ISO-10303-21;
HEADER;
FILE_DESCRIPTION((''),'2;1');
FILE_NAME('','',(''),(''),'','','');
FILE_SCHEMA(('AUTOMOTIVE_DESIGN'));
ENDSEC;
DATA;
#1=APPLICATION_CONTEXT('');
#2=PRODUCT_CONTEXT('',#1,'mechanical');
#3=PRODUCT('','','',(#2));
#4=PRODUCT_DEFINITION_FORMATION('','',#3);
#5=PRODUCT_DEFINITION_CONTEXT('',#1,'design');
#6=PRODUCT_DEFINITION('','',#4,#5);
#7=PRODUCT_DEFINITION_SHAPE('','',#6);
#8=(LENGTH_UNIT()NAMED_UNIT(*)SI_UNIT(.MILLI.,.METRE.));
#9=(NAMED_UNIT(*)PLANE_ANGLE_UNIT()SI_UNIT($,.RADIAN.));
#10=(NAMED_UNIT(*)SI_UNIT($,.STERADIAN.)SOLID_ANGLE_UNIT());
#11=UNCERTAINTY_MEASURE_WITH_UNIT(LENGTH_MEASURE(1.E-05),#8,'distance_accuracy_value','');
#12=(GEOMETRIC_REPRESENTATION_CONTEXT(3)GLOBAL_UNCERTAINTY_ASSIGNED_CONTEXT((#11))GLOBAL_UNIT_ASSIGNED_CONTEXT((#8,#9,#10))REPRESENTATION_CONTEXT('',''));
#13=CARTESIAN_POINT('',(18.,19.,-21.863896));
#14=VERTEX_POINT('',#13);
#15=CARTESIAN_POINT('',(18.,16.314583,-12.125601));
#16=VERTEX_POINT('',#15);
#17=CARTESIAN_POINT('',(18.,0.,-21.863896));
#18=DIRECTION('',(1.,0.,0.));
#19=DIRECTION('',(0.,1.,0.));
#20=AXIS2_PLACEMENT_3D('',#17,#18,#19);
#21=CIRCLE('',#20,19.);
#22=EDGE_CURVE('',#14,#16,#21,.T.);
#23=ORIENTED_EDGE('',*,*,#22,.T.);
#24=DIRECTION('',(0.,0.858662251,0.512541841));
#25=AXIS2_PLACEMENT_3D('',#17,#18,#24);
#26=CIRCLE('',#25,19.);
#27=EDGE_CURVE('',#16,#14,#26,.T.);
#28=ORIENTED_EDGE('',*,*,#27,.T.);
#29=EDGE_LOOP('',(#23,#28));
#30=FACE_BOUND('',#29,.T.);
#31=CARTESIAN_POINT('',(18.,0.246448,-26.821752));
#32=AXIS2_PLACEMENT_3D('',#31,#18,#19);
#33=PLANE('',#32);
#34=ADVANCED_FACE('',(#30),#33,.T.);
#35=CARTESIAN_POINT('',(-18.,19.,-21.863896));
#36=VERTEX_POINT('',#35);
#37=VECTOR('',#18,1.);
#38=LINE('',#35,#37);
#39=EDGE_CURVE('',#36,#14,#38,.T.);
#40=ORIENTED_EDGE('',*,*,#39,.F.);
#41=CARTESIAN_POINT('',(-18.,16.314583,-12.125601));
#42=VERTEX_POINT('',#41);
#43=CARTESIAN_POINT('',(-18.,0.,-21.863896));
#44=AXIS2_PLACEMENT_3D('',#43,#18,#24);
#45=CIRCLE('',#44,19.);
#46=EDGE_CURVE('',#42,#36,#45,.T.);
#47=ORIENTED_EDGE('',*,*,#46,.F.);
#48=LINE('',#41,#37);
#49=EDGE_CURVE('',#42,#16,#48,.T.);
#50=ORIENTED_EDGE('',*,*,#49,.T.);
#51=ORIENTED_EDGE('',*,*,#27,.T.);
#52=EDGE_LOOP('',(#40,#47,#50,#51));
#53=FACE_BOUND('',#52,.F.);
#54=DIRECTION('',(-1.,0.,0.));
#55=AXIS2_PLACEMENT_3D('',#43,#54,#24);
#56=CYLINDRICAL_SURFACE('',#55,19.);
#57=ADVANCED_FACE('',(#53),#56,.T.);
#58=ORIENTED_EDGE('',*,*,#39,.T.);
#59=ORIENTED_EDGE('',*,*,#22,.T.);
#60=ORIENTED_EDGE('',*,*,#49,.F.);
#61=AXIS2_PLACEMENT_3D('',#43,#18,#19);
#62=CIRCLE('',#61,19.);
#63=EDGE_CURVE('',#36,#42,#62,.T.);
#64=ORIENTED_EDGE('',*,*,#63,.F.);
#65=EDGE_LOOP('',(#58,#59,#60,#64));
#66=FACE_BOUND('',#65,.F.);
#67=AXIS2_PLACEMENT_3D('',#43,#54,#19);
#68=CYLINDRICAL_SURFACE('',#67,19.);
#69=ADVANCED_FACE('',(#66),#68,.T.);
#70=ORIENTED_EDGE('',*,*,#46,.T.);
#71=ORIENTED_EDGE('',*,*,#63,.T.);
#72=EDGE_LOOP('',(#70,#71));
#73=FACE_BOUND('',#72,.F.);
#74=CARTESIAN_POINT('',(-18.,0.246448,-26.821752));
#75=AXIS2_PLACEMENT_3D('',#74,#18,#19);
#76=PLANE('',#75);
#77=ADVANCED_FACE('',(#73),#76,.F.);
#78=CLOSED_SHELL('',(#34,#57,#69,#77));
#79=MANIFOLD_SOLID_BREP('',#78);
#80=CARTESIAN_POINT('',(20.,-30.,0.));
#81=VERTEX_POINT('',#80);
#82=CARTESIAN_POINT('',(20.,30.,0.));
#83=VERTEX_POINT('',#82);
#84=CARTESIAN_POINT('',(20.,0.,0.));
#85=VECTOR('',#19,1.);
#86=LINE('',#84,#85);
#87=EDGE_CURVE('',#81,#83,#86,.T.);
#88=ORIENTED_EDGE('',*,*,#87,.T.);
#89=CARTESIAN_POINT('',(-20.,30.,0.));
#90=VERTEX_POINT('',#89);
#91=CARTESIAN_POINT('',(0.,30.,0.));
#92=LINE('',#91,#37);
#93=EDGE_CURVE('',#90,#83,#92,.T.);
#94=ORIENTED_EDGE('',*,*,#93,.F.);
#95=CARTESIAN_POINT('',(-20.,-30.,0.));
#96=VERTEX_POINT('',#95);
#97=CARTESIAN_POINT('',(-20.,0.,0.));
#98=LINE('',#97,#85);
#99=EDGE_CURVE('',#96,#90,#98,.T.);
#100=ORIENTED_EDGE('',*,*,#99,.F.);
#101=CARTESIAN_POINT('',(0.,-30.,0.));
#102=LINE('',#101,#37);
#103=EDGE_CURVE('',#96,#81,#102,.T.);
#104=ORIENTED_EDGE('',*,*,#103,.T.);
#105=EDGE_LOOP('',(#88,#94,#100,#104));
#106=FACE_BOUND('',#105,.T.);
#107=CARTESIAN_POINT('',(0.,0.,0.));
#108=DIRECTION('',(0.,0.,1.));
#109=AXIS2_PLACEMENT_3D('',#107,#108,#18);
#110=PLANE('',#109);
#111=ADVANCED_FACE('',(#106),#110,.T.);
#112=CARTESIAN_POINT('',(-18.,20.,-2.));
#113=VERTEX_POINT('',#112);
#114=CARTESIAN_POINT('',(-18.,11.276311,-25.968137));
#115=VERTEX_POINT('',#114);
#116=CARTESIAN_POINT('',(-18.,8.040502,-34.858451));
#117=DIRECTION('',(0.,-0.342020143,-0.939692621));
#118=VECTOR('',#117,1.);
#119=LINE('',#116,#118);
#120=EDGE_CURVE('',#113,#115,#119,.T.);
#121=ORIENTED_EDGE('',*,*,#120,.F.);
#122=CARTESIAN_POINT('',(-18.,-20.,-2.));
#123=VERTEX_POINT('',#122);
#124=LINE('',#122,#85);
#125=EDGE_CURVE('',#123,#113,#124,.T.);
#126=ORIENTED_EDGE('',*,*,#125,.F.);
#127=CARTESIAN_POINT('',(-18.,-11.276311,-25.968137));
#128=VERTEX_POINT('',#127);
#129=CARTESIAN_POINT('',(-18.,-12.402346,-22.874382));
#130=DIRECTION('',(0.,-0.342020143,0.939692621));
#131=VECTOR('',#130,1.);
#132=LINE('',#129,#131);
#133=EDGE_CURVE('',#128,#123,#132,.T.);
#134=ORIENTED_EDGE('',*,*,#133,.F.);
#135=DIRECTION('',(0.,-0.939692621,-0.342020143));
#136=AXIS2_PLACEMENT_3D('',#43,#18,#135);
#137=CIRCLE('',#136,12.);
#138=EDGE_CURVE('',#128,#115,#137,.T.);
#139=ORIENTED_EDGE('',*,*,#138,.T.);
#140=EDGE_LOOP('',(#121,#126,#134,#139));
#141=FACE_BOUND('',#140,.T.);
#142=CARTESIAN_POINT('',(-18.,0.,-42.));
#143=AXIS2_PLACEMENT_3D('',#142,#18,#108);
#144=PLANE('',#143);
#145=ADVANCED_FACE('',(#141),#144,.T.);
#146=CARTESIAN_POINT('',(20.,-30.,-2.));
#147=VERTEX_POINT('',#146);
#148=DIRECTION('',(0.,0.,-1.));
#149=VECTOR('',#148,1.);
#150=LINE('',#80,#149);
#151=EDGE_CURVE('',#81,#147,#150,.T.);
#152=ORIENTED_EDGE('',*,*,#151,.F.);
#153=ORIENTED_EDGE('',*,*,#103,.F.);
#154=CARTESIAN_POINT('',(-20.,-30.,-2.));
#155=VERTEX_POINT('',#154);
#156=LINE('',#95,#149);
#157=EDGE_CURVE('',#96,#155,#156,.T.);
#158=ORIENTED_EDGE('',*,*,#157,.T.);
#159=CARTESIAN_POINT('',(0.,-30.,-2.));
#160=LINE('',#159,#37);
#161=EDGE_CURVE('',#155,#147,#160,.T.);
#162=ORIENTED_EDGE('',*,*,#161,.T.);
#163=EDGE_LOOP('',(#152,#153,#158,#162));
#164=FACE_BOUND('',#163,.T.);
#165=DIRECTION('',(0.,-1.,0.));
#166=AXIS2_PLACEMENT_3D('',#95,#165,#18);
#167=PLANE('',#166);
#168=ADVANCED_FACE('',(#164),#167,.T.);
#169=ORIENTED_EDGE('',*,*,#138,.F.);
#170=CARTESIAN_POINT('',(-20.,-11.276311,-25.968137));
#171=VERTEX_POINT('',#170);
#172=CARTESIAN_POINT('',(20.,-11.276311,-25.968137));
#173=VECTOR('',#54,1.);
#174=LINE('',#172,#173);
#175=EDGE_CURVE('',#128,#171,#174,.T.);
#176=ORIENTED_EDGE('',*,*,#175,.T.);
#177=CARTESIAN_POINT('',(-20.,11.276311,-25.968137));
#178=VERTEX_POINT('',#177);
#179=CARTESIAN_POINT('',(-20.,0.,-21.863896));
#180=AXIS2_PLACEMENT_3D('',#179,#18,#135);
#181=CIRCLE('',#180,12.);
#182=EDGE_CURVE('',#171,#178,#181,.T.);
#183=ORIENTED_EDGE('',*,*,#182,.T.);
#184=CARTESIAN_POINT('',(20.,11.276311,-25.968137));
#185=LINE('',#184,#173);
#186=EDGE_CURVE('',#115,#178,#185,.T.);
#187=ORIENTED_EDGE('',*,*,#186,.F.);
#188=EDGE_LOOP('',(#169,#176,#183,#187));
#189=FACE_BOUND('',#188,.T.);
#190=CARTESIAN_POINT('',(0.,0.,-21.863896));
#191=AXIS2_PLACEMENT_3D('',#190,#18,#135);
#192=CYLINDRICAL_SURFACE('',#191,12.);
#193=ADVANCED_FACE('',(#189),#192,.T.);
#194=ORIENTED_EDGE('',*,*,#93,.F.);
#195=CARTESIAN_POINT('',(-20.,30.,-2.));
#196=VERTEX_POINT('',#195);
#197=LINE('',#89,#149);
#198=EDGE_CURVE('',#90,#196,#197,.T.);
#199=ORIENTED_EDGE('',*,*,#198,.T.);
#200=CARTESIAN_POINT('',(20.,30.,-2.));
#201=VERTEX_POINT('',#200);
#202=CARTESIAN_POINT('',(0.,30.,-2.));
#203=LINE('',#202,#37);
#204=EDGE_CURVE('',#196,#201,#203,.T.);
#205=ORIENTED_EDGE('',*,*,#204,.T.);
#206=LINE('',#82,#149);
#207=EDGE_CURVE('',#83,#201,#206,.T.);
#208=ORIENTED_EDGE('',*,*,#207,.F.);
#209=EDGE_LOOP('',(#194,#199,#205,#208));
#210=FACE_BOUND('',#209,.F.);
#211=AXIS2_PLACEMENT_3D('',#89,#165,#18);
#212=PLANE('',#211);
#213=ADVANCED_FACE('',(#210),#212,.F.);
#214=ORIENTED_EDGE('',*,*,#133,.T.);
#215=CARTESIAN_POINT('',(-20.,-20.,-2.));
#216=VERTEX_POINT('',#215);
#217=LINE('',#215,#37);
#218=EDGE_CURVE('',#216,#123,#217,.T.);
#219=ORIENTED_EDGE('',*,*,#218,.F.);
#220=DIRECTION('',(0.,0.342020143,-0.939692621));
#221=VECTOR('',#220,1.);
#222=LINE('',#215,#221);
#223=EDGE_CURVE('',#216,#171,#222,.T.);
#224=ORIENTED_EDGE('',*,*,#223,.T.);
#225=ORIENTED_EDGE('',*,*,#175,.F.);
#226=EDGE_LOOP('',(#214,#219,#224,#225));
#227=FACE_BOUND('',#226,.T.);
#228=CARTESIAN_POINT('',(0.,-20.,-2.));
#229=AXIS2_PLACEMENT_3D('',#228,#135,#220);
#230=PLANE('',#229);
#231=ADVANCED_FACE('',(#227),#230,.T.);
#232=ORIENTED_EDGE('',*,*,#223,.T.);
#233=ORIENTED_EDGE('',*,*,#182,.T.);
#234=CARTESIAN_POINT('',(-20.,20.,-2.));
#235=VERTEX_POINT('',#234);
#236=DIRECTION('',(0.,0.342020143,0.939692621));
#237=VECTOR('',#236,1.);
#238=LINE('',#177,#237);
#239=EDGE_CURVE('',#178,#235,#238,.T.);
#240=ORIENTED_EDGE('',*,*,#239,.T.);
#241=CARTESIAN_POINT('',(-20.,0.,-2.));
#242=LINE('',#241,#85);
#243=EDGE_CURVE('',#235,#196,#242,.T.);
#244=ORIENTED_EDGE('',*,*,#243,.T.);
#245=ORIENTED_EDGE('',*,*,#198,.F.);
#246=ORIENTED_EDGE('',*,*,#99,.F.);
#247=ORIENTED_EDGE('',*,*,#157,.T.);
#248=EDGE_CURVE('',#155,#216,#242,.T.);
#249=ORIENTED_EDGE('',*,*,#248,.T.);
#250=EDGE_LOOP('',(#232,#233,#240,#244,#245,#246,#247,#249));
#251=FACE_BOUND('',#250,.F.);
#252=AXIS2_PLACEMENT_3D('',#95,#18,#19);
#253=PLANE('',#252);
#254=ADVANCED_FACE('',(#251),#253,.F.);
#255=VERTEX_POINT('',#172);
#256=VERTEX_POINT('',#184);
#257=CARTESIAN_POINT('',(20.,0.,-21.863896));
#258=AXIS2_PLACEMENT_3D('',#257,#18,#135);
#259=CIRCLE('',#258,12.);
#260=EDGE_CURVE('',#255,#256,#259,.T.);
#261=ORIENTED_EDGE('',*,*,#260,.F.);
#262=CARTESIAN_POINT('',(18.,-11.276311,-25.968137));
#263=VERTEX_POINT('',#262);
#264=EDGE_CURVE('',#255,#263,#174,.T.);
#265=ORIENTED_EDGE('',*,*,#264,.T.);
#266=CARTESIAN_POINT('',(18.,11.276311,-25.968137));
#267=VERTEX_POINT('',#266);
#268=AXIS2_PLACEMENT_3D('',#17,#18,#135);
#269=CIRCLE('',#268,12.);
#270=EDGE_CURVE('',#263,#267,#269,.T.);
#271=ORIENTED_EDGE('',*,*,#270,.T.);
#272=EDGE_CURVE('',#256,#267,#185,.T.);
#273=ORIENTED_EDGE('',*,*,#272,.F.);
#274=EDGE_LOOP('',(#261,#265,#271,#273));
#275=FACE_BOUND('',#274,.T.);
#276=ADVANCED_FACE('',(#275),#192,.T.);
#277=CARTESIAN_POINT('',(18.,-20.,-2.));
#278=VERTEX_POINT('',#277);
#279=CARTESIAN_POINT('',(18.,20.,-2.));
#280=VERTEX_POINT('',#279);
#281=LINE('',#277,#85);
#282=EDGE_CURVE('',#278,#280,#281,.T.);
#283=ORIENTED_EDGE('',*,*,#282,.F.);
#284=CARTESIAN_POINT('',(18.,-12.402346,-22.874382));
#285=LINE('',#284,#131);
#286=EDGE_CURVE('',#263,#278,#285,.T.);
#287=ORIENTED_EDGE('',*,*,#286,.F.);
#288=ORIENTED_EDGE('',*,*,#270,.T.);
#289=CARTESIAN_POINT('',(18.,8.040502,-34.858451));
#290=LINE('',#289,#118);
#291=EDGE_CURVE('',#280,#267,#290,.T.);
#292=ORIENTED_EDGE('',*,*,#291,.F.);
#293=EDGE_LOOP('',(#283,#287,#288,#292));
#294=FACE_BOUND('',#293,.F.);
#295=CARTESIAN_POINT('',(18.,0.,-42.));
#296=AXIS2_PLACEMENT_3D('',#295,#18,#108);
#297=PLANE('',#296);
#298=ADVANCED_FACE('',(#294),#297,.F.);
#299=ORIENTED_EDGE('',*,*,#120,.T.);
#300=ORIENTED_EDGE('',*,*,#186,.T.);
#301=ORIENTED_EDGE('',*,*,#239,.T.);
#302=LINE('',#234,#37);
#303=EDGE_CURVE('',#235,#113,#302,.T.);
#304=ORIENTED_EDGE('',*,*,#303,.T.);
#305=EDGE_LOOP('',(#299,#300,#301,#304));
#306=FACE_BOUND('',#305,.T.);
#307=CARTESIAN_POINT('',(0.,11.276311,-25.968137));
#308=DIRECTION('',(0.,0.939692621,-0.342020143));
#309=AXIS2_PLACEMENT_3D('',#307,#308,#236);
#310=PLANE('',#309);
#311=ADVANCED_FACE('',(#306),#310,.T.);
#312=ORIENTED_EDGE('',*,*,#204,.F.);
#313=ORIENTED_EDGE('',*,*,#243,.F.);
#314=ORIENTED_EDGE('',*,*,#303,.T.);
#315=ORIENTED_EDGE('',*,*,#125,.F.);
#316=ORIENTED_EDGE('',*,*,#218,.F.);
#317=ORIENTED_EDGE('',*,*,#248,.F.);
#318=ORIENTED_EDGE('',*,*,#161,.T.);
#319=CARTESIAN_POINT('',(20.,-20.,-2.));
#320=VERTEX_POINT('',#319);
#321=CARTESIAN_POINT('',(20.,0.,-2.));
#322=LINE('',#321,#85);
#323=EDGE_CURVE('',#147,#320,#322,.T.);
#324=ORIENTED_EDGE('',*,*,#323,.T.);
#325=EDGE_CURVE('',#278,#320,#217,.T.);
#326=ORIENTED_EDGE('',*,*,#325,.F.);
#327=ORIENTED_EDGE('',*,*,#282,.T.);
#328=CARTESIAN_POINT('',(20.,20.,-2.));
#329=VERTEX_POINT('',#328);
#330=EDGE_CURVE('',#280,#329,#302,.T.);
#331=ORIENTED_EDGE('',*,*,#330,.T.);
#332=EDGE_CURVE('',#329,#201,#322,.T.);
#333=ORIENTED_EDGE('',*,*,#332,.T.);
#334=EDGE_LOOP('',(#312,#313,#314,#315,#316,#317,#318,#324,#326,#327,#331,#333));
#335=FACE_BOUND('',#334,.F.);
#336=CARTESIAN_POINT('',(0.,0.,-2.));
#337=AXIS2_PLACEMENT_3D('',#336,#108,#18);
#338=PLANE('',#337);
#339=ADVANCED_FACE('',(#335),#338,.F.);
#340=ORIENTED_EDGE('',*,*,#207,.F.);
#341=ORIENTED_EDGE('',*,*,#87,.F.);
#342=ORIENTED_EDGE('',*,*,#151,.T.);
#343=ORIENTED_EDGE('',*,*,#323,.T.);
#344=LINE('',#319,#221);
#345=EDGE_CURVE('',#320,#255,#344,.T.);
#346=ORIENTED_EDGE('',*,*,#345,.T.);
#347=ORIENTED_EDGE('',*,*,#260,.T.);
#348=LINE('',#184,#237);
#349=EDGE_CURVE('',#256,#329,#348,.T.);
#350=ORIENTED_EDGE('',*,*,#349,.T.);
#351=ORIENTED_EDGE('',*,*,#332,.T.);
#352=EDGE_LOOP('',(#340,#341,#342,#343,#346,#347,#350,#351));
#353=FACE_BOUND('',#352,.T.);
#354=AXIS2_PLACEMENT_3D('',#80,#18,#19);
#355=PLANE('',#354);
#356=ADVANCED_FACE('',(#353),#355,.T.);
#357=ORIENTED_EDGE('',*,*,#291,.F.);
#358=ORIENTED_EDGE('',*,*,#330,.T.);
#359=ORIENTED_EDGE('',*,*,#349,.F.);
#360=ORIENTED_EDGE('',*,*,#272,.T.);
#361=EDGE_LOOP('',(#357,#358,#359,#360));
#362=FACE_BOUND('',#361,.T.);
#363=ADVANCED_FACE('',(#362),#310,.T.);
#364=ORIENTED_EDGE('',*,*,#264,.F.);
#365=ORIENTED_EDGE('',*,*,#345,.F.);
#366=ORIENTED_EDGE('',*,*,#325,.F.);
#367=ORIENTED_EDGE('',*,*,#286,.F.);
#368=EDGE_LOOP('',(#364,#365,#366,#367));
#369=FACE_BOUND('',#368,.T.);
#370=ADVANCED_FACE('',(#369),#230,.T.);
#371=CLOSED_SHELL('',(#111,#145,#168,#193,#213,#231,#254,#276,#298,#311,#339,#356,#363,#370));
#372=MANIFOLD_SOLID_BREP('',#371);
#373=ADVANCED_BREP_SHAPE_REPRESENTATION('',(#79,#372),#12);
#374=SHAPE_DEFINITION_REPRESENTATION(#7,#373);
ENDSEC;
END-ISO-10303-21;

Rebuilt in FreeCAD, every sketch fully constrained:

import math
import FreeCAD as App
import Part
import Sketcher

V = App.Vector
Q = App.Units.Quantity

doc = App.newDocument("Part")
body = doc.addObject("PartDesign::Body", "Body")

# Sketch on XY plane
sketch1 = body.newObject("Sketcher::SketchObject", "Sketch")
sketch1.AttachmentSupport = (doc.getObject("XY_Plane"), [""])
sketch1.MapMode = "FlatFace"
sketch1.addGeometry(Part.LineSegment(V(-20, 30, 0), V(-20, -30, 0)), False)
sketch1.addGeometry(Part.LineSegment(V(-20, -30, 0), V(20, -30, 0)), False)
sketch1.addGeometry(Part.LineSegment(V(20, -30, 0), V(20, 30, 0)), False)
sketch1.addGeometry(Part.LineSegment(V(20, 30, 0), V(-20, 30, 0)), False)
sketch1.addConstraint(Sketcher.Constraint("Coincident", 0, 2, 1, 1))
sketch1.addConstraint(Sketcher.Constraint("Coincident", 1, 2, 2, 1))
sketch1.addConstraint(Sketcher.Constraint("Coincident", 2, 2, 3, 1))
sketch1.addConstraint(Sketcher.Constraint("Coincident", 3, 2, 0, 1))
sketch1.addConstraint(Sketcher.Constraint("Vertical", 0))
sketch1.addConstraint(Sketcher.Constraint("Horizontal", 1))
sketch1.addConstraint(Sketcher.Constraint("Vertical", 2))
sketch1.addConstraint(Sketcher.Constraint("Horizontal", 3))
sketch1.addConstraint(Sketcher.Constraint("Symmetric", 0, 2, 2, 2, -1, 1))
sketch1.addConstraint(Sketcher.Constraint("DistanceX", 1, 1, 1, 2, Q("40 mm")))
sketch1.addConstraint(Sketcher.Constraint("DistanceY", 0, 2, 0, 1, Q("60 mm")))
pad1 = body.newObject("PartDesign::Pad", "Pad")
pad1.Profile = sketch1
pad1.Length = 2
pad1.Reversed = True

# Sketch on YZ plane
sketch2 = body.newObject("Sketcher::SketchObject", "Sketch001")
sketch2.AttachmentSupport = (doc.getObject("YZ_Plane"), [""])
sketch2.MapMode = "FlatFace"
sketch2.addGeometry(Part.LineSegment(V(11, -26, 0), V(20, -2, 0)), False)
sketch2.addGeometry(Part.LineSegment(V(20, -2, 0), V(-20, -2, 0)), False)
sketch2.addGeometry(Part.LineSegment(V(-20, -2, 0), V(-11, -26, 0)), False)
sketch2.addGeometry(Part.ArcOfCircle(Part.Circle(V(0, -22, 0), V(0, 0, 1), 12), math.radians(-160), math.radians(-20)), False)
sketch2.addConstraint(Sketcher.Constraint("Coincident", 0, 2, 1, 1))
sketch2.addConstraint(Sketcher.Constraint("Coincident", 1, 2, 2, 1))
sketch2.addConstraint(Sketcher.Constraint("Tangent", 2, 2, 3, 1))
sketch2.addConstraint(Sketcher.Constraint("Tangent", 3, 2, 0, 1))
sketch2.addConstraint(Sketcher.Constraint("Horizontal", 1))
sketch2.addConstraint(Sketcher.Constraint("Symmetric", 2, 2, 3, 2, -2))
sketch2.addConstraint(Sketcher.Constraint("Radius", 3, Q("12 mm")))
sketch2.addConstraint(Sketcher.Constraint("DistanceX", 1, 2, 1, 1, Q("40 mm")))
sketch2.addConstraint(Sketcher.Constraint("Angle", 0, Q("70 deg")))
sketch2.addConstraint(Sketcher.Constraint("DistanceY", 0, 2, -1, 1, Q("2 mm")))
pad2 = body.newObject("PartDesign::Pad", "Pad001")
pad2.Profile = sketch2
pad2.Length = 40
pad2.Midplane = True

# Sketch on XZ plane
sketch3 = body.newObject("Sketcher::SketchObject", "Sketch002")
sketch3.AttachmentSupport = (doc.getObject("XZ_Plane"), [""])
sketch3.MapMode = "FlatFace"
sketch3.addGeometry(Part.LineSegment(V(-18, -2, 0), V(-18, -42, 0)), False)
sketch3.addGeometry(Part.LineSegment(V(-18, -42, 0), V(18, -42, 0)), False)
sketch3.addGeometry(Part.LineSegment(V(18, -42, 0), V(18, -2, 0)), False)
sketch3.addGeometry(Part.LineSegment(V(18, -2, 0), V(-18, -2, 0)), False)
sketch3.addConstraint(Sketcher.Constraint("Coincident", 0, 2, 1, 1))
sketch3.addConstraint(Sketcher.Constraint("Coincident", 1, 2, 2, 1))
sketch3.addConstraint(Sketcher.Constraint("Coincident", 2, 2, 3, 1))
sketch3.addConstraint(Sketcher.Constraint("Coincident", 3, 2, 0, 1))
sketch3.addConstraint(Sketcher.Constraint("Vertical", 0))
sketch3.addConstraint(Sketcher.Constraint("Horizontal", 1))
sketch3.addConstraint(Sketcher.Constraint("Vertical", 2))
sketch3.addConstraint(Sketcher.Constraint("Horizontal", 3))
sketch3.addConstraint(Sketcher.Constraint("DistanceX", 1, 1, 1, 2, Q("36 mm")))
sketch3.addConstraint(Sketcher.Constraint("DistanceY", 0, 2, 0, 1, Q("40 mm")))
sketch3.addConstraint(Sketcher.Constraint("DistanceX", 0, 2, -1, 1, Q("18 mm")))
sketch3.addConstraint(Sketcher.Constraint("DistanceY", 0, 2, -1, 1, Q("42 mm")))
pocket1 = body.newObject("PartDesign::Pocket", "Pocket")
pocket1.Profile = sketch3
pocket1.Length = 40
pocket1.Midplane = True
body2 = doc.addObject("PartDesign::Body", "Body001")

# Sketch on YZ plane
sketch4 = body2.newObject("Sketcher::SketchObject", "Sketch003")
sketch4.AttachmentSupport = (doc.getObject("YZ_Plane001"), [""])
sketch4.MapMode = "FlatFace"
sketch4.AttachmentOffset = App.Placement(V(0, 0, -18), App.Rotation())
sketch4.addGeometry(Part.ArcOfCircle(Part.Circle(V(0, -22, 0), V(0, 0, 1), 19), math.radians(0), math.radians(31)), False)
sketch4.addGeometry(Part.ArcOfCircle(Part.Circle(V(0, -22, 0), V(0, 0, 1), 19), math.radians(31), math.radians(360)), False)
sketch4.addConstraint(Sketcher.Constraint("Tangent", 0, 1, 1, 2))
sketch4.addConstraint(Sketcher.Constraint("Coincident", 1, 1, 0, 2))
sketch4.addConstraint(Sketcher.Constraint("PointOnObject", 0, 3, -2))
sketch4.addConstraint(Sketcher.Constraint("Horizontal", 1, 3, 0, 1))
sketch4.addConstraint(Sketcher.Constraint("Radius", 0, Q("19 mm")))
sketch4.addConstraint(Sketcher.Constraint("DistanceY", 1, 1, -1, 1, Q("12.125601 mm")))
sketch4.addConstraint(Sketcher.Constraint("DistanceY", 0, 3, -1, 1, Q("21.863896 mm")))
pad3 = body2.newObject("PartDesign::Pad", "Pad002")
pad3.Profile = sketch4
pad3.Length = 36

doc.recompute()
